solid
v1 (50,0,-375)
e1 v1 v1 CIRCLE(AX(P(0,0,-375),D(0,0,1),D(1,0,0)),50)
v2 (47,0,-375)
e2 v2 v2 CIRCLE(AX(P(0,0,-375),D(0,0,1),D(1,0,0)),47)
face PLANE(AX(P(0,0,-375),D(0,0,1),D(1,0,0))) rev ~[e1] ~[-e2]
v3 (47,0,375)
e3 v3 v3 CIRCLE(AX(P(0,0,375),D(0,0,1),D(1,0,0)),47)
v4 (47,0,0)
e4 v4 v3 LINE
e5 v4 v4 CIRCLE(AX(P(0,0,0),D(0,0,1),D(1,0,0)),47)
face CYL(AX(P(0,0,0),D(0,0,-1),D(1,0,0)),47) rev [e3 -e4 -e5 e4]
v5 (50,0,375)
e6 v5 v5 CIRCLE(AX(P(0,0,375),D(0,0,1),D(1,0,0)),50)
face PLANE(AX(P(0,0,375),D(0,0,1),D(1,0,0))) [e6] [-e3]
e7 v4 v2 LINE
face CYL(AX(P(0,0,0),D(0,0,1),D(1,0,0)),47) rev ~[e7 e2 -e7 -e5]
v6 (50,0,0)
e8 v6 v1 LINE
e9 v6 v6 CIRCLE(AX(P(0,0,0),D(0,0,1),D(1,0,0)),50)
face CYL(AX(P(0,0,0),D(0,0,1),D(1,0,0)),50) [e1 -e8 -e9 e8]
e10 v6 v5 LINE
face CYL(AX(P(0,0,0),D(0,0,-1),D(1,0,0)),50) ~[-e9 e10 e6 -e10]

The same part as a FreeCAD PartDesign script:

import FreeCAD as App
import Part
import Sketcher
from FreeCAD import Vector
Q = App.Units.Quantity

doc = App.newDocument("Part")
body = doc.addObject("PartDesign::Body", "Body")

# Sketch on XY plane
sketch1 = doc.addObject("Sketcher::SketchObject", "Sketch")
body.addObject(sketch1)
sketch1.AttachmentSupport = (doc.XY_Plane, [""])
sketch1.MapMode = "FlatFace"
sketch1.addGeometry(Part.Circle(Vector(0, 0, 0), Vector(0, 0, 1), 50), False)
sketch1.addGeometry(Part.Circle(Vector(0, 0, 0), Vector(0, 0, 1), 47), False)
sketch1.addConstraint(Sketcher.Constraint("Coincident", 0, 3, -1, 1))
sketch1.addConstraint(Sketcher.Constraint("Coincident", 1, 3, -1, 1))
sketch1.addConstraint(Sketcher.Constraint("Diameter", 0, Q("100 mm")))
sketch1.addConstraint(Sketcher.Constraint("Diameter", 1, Q("94 mm")))
pad1 = doc.addObject("PartDesign::Pad", "Pad")
body.addObject(pad1)
pad1.Profile = sketch1
pad1.Length = 750
pad1.Midplane = True

doc.recompute()
